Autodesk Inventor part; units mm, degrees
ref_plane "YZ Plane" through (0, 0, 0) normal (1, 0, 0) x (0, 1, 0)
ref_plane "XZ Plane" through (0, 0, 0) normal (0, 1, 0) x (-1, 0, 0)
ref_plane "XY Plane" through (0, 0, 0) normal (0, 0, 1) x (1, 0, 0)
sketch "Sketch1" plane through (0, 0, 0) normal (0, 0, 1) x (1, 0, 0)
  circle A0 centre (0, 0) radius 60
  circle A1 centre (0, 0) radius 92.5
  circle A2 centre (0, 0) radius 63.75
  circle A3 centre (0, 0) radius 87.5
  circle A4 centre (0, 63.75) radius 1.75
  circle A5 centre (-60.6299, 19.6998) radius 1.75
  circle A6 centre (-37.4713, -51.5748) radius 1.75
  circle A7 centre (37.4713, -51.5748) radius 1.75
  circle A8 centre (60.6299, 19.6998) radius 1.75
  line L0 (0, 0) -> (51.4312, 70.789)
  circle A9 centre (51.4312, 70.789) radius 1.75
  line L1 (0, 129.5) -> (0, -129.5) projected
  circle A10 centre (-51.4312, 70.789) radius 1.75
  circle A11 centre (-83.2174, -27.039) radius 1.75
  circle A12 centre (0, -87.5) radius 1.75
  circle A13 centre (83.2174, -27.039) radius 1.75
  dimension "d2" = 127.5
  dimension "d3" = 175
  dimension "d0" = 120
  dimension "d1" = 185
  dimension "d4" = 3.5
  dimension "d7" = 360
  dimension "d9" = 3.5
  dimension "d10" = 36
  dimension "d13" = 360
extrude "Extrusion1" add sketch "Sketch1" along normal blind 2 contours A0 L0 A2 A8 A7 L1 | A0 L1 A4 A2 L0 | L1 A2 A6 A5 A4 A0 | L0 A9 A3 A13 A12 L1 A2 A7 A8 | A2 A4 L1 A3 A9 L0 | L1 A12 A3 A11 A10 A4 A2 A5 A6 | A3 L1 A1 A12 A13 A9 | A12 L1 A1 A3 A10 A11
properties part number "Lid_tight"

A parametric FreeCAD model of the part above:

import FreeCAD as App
import Part
import Sketcher

V = App.Vector

doc = App.newDocument("Part")
body = doc.addObject("PartDesign::Body", "Body")

# Sketch on XY plane
sketch1 = doc.addObject("Sketcher::SketchObject", "Sketch")
body.addObject(sketch1)
sketch1.AttachmentSupport = (doc.XY_Plane, [""])
sketch1.MapMode = "FlatFace"
sketch1.addGeometry(Part.Circle(V(0, 0, 0), V(0, 0, 1), 92.5), False)
sketch1.addGeometry(Part.Circle(V(0, 0, 0), V(0, 0, 1), 60), False)
sketch1.addGeometry(Part.Circle(V(60.6, 19.7, 0), V(0, 0, 1), 1.8), False)
sketch1.addGeometry(Part.Circle(V(37.5, -51.6, 0), V(0, 0, 1), 1.8), False)
sketch1.addGeometry(Part.Circle(V(0, 63.8, 0), V(0, 0, 1), 1.8), False)
sketch1.addGeometry(Part.Circle(V(51.4, 70.8, 0), V(0, 0, 1), 1.8), False)
sketch1.addGeometry(Part.Circle(V(83.2, -27, 0), V(0, 0, 1), 1.8), False)
sketch1.addGeometry(Part.Circle(V(0, -87.5, 0), V(0, 0, 1), 1.8), False)
sketch1.addGeometry(Part.Circle(V(-37.5, -51.6, 0), V(0, 0, 1), 1.8), False)
sketch1.addGeometry(Part.Circle(V(-60.6, 19.7, 0), V(0, 0, 1), 1.8), False)
sketch1.addGeometry(Part.Circle(V(-83.2, -27, 0), V(0, 0, 1), 1.8), False)
sketch1.addGeometry(Part.Circle(V(-51.4, 70.8, 0), V(0, 0, 1), 1.8), False)
sketch1.addConstraint(Sketcher.Constraint("Coincident", 0, 3, -1, 1))
sketch1.addConstraint(Sketcher.Constraint("Coincident", 1, 3, -1, 1))
sketch1.addConstraint(Sketcher.Constraint("Equal", 2, 3))
sketch1.addConstraint(Sketcher.Constraint("Equal", 3, 4))
sketch1.addConstraint(Sketcher.Constraint("Equal", 4, 5))
sketch1.addConstraint(Sketcher.Constraint("Equal", 5, 6))
sketch1.addConstraint(Sketcher.Constraint("Equal", 6, 7))
sketch1.addConstraint(Sketcher.Constraint("Equal", 7, 8))
sketch1.addConstraint(Sketcher.Constraint("Equal", 8, 9))
sketch1.addConstraint(Sketcher.Constraint("Equal", 9, 10))
sketch1.addConstraint(Sketcher.Constraint("Equal", 10, 11))
sketch1.addConstraint(Sketcher.Constraint("Symmetric", 3, 3, 8, 3, -2))
sketch1.addConstraint(Sketcher.Constraint("Symmetric", 2, 3, 9, 3, -2))
sketch1.addConstraint(Sketcher.Constraint("Symmetric", 6, 3, 10, 3, -2))
sketch1.addConstraint(Sketcher.Constraint("Symmetric", 5, 3, 11, 3, -2))
sketch1.addConstraint(Sketcher.Constraint("PointOnObject", 4, 3, -2))
sketch1.addConstraint(Sketcher.Constraint("PointOnObject", 7, 3, -2))
sketch1.addConstraint(Sketcher.Constraint("Diameter", 0, 185.0))
sketch1.addConstraint(Sketcher.Constraint("Diameter", 1, 120.0))
sketch1.addConstraint(Sketcher.Constraint("Diameter", 2, 3.5))
sketch1.addConstraint(Sketcher.Constraint("DistanceY", 7, 3, -1, 1, 87.5))
sketch1.addConstraint(Sketcher.Constraint("DistanceX", -1, 1, 2, 3, 60.63))
sketch1.addConstraint(Sketcher.Constraint("DistanceY", -1, 1, 4, 3, 63.75))
sketch1.addConstraint(Sketcher.Constraint("DistanceX", 3, 3, 5, 3, 13.96))
sketch1.addConstraint(Sketcher.Constraint("DistanceY", -1, 1, 5, 3, 70.789))
sketch1.addConstraint(Sketcher.Constraint("DistanceY", 6, 3, -1, 1, 27.039))
sketch1.addConstraint(Sketcher.Constraint("DistanceX", 3, 3, 6, 3, 45.746))
sketch1.addConstraint(Sketcher.Constraint("DistanceY", -1, 1, 2, 3, 19.6998))
sketch1.addConstraint(Sketcher.Constraint("DistanceX", -1, 1, 3, 3, 37.4713))
sketch1.addConstraint(Sketcher.Constraint("DistanceY", 3, 3, -1, 1, 51.5748))
pad1 = doc.addObject("PartDesign::Pad", "Pad")
body.addObject(pad1)
pad1.Profile = sketch1
pad1.Length = 2

doc.recompute()
